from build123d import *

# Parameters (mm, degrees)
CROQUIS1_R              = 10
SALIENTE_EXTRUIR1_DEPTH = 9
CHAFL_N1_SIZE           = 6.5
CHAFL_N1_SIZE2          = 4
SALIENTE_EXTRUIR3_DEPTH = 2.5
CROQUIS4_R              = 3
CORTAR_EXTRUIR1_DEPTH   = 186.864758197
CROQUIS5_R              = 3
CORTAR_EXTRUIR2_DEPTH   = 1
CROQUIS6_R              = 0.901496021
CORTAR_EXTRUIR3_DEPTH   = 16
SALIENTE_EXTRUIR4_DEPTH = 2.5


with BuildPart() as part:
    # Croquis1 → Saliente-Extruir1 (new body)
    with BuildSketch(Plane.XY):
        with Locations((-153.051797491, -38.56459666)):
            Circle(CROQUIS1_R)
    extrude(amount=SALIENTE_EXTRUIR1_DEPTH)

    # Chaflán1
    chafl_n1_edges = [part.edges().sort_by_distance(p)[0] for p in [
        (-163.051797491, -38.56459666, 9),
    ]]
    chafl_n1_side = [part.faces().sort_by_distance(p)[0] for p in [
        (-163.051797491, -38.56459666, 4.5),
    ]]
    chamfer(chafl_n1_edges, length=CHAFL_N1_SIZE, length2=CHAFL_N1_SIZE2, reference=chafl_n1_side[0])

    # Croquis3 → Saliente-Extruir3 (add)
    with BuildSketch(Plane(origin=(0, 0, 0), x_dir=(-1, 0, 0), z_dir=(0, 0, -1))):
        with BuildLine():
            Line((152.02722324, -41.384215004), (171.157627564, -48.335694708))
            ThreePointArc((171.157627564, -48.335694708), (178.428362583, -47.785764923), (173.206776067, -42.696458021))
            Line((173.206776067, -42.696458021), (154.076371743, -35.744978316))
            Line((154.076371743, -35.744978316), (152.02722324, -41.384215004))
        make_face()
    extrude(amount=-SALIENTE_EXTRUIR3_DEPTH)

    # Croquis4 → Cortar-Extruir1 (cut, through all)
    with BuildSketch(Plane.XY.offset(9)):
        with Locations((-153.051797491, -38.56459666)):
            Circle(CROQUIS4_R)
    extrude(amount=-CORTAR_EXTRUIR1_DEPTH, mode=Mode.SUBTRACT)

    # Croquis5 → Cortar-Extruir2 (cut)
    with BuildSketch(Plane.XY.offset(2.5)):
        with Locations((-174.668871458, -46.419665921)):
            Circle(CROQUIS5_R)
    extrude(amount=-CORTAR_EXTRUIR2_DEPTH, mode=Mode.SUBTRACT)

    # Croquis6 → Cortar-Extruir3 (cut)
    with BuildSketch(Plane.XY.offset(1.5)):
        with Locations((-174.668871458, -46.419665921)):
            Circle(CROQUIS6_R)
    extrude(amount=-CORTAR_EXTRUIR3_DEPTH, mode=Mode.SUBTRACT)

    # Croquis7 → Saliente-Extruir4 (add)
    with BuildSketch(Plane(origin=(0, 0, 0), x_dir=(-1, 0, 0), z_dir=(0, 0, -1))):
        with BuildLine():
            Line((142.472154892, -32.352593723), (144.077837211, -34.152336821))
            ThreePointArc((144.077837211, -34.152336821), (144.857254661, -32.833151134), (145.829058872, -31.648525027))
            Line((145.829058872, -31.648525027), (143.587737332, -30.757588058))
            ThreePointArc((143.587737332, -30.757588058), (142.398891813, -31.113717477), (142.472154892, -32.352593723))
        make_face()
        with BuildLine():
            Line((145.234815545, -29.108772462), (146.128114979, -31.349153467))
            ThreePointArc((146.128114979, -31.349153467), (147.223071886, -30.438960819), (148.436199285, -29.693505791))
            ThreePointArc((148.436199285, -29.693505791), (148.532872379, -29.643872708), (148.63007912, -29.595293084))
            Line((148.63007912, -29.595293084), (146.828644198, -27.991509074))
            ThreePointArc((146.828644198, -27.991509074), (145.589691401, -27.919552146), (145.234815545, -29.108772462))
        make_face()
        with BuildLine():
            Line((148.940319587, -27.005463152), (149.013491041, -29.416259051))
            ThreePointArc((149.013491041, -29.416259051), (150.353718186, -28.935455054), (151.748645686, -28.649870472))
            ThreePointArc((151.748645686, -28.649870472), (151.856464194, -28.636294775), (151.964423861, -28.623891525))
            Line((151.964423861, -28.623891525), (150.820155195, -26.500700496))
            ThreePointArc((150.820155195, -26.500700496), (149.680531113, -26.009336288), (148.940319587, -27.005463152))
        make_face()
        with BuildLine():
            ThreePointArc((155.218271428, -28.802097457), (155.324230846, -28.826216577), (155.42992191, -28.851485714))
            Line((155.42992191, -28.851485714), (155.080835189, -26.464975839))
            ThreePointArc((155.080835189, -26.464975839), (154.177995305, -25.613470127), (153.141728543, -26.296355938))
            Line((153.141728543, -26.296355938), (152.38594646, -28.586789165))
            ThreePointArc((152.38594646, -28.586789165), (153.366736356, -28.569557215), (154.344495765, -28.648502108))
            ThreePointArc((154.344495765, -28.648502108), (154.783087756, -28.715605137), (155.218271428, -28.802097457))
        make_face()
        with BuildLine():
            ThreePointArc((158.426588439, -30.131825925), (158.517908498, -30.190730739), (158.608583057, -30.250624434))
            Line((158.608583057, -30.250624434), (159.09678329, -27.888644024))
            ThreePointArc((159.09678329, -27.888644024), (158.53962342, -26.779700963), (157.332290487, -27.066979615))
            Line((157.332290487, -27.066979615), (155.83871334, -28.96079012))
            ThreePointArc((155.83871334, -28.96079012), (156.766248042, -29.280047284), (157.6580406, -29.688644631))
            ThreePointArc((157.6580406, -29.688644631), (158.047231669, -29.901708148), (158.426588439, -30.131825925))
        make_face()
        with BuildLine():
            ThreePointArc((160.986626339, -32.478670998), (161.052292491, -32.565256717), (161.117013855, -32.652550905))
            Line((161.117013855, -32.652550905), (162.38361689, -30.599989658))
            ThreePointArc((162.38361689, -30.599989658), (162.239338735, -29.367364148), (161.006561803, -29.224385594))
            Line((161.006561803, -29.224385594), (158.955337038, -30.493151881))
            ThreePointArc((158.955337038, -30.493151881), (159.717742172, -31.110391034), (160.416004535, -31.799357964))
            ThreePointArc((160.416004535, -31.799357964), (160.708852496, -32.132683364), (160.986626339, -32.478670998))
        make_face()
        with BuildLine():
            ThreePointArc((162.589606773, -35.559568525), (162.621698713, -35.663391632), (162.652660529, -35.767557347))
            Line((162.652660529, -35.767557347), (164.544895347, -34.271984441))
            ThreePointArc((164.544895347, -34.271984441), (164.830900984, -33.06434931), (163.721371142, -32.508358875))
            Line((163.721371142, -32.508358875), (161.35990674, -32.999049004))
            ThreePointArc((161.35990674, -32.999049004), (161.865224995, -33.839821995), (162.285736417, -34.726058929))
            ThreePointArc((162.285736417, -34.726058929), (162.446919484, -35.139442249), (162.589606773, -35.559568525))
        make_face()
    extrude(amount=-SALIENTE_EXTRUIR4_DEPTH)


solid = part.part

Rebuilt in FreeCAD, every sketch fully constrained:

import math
import FreeCAD as App
import Part
import Sketcher
from FreeCAD import Vector


def edges_at(feature, points):
    """Names of the edges that pass closest to the given points."""
    edges = feature.Shape.Edges
    near = lambda p: min(range(len(edges)), key=lambda i: edges[i].distToShape(Part.Vertex(*p))[0])
    return sorted({f"Edge{near(p) + 1}" for p in points})

doc = App.newDocument("Part")
body = doc.addObject("PartDesign::Body", "Body")

sketch1 = body.newObject("Sketcher::SketchObject", "Sketch")
sketch1.AttachmentSupport = (doc.getObject("XY_Plane"), [""])
sketch1.MapMode = "FlatFace"
sketch1.addGeometry(Part.Circle(Vector(-153.051797, -38.564597, 0), Vector(0, 0, 1), 10), False)
sketch1.addConstraint(Sketcher.Constraint("Diameter", 0, 20.0))
sketch1.addConstraint(Sketcher.Constraint("DistanceX", 0, 3, -1, 1, 153.051797))
sketch1.addConstraint(Sketcher.Constraint("DistanceY", 0, 3, -1, 1, 38.564597))
pad1 = body.newObject("PartDesign::Pad", "Pad")
pad1.Profile = sketch1
pad1.Length = 9
doc.recompute()

chamfer = body.newObject("PartDesign::Chamfer", "Chamfer")
chamfer.Base = (pad1, edges_at(pad1, [(-163.052, -38.565, 9)]))
chamfer.ChamferType = "Two distances"
chamfer.Size = 6.5
chamfer.Size2 = 4

sketch2 = body.newObject("Sketcher::SketchObject", "Sketch001")
sketch2.AttachmentSupport = (doc.getObject("XY_Plane"), [""])
sketch2.MapMode = "FlatFace"
sketch2.addGeometry(Part.LineSegment(Vector(-152.027223, -41.384215, 0), Vector(-171.157628, -48.335695, 0)), False)
sketch2.addGeometry(Part.ArcOfCircle(Part.Circle(Vector(-174.668871, -46.419666, 0), Vector(0, 0, 1), 4), math.radians(68.560175), math.radians(331.379419)), False)
sketch2.addGeometry(Part.LineSegment(Vector(-173.206776, -42.696458, 0), Vector(-154.076372, -35.744978, 0)), False)
sketch2.addGeometry(Part.LineSegment(Vector(-154.076372, -35.744978, 0), Vector(-152.027223, -41.384215, 0)), False)
sketch2.addConstraint(Sketcher.Constraint("Coincident", 0, 2, 1, 2))
sketch2.addConstraint(Sketcher.Constraint("Coincident", 1, 1, 2, 1))
sketch2.addConstraint(Sketcher.Constraint("Coincident", 2, 2, 3, 1))
sketch2.addConstraint(Sketcher.Constraint("Coincident", 3, 2, 0, 1))
sketch2.addConstraint(Sketcher.Constraint("Parallel", 0, 2))
sketch2.addConstraint(Sketcher.Constraint("Perpendicular", 2, 3))
sketch2.addConstraint(Sketcher.Constraint("Equal", 0, 2))
sketch2.addConstraint(Sketcher.Constraint("Radius", 1, 4.0))
sketch2.addConstraint(Sketcher.Constraint("Distance", 3, 6.0))
sketch2.addConstraint(Sketcher.Constraint("DistanceX", 1, 3, 2, 2, 20.5925))
sketch2.addConstraint(Sketcher.Constraint("Distance", 0, 20.354249))
sketch2.addConstraint(Sketcher.Constraint("DistanceX", 1, 3, -1, 1, 174.668871))
sketch2.addConstraint(Sketcher.Constraint("DistanceY", 1, 1, -1, 1, 42.696458))
pad2 = body.newObject("PartDesign::Pad", "Pad001")
pad2.Profile = sketch2
pad2.Length = 2.5

sketch3 = body.newObject("Sketcher::SketchObject", "Sketch002")
sketch3.AttachmentSupport = (doc.getObject("XY_Plane"), [""])
sketch3.MapMode = "FlatFace"
sketch3.AttachmentOffset = App.Placement(Vector(0, 0, 9), App.Rotation())
sketch3.addGeometry(Part.Circle(Vector(-153.051797, -38.564597, 0), Vector(0, 0, 1), 3), False)
sketch3.addConstraint(Sketcher.Constraint("Diameter", 0, 6.0))
sketch3.addConstraint(Sketcher.Constraint("DistanceX", 0, 3, -1, 1, 153.051797))
sketch3.addConstraint(Sketcher.Constraint("DistanceY", 0, 3, -1, 1, 38.564597))
pocket1 = body.newObject("PartDesign::Pocket", "Pocket")
pocket1.Profile = sketch3
pocket1.Type = "ThroughAll"

sketch4 = body.newObject("Sketcher::SketchObject", "Sketch003")
sketch4.AttachmentSupport = (doc.getObject("XY_Plane"), [""])
sketch4.MapMode = "FlatFace"
sketch4.AttachmentOffset = App.Placement(Vector(0, 0, 2.5), App.Rotation())
sketch4.addGeometry(Part.Circle(Vector(-174.668871, -46.419666, 0), Vector(0, 0, 1), 3), False)
sketch4.addConstraint(Sketcher.Constraint("Diameter", 0, 6.0))
sketch4.addConstraint(Sketcher.Constraint("DistanceX", 0, 3, -1, 1, 174.668871))
sketch4.addConstraint(Sketcher.Constraint("DistanceY", 0, 3, -1, 1, 46.419666))
pocket2 = body.newObject("PartDesign::Pocket", "Pocket001")
pocket2.Profile = sketch4
pocket2.Length = 1

sketch5 = body.newObject("Sketcher::SketchObject", "Sketch004")
sketch5.AttachmentSupport = (doc.getObject("XY_Plane"), [""])
sketch5.MapMode = "FlatFace"
sketch5.AttachmentOffset = App.Placement(Vector(0, 0, 1.5), App.Rotation())
sketch5.addGeometry(Part.Circle(Vector(-174.668871, -46.419666, 0), Vector(0, 0, 1), 0.901496), False)
sketch5.addConstraint(Sketcher.Constraint("Diameter", 0, 1.802992))
sketch5.addConstraint(Sketcher.Constraint("DistanceX", 0, 3, -1, 1, 174.668871))
sketch5.addConstraint(Sketcher.Constraint("DistanceY", 0, 3, -1, 1, 46.419666))
pocket3 = body.newObject("PartDesign::Pocket", "Pocket002")
pocket3.Profile = sketch5
pocket3.Length = 16

sketch6 = body.newObject("Sketcher::SketchObject", "Sketch005")
sketch6.AttachmentSupport = (doc.getObject("XY_Plane"), [""])
sketch6.MapMode = "FlatFace"
sketch6.addGeometry(Part.LineSegment(Vector(-142.472155, -32.352594, 0), Vector(-144.077837, -34.152337, 0)), False)
sketch6.addGeometry(Part.ArcOfCircle(Part.Circle(Vector(-153.051797, -38.564597, 0), Vector(0, 0, 1), 10), math.radians(26.18213), math.radians(43.757465)), False)
sketch6.addGeometry(Part.LineSegment(Vector(-145.829059, -31.648525, 0), Vector(-143.587737, -30.757588, 0)), False)
sketch6.addGeometry(Part.ArcOfCircle(Part.Circle(Vector(-143.218346, -31.686862, 0), Vector(0, 0, 1), 1), math.radians(-41.738483), math.radians(111.678078)), False)
sketch6.addGeometry(Part.LineSegment(Vector(-145.234816, -29.108772, 0), Vector(-146.128115, -31.349153, 0)), False)
sketch6.addGeometry(Part.ArcOfCircle(Part.Circle(Vector(-153.051797, -38.564597, 0), Vector(0, 0, 1), 10), math.radians(46.18213), math.radians(62.512194)), False)
sketch6.addGeometry(Part.ArcOfCircle(Part.Circle(Vector(-153.051798, -38.564599, 0), Vector(0, 0, 1), 10.000002), math.radians(62.512195), math.radians(63.757465)), False)
sketch6.addGeometry(Part.LineSegment(Vector(-148.630079, -29.595293, 0), Vector(-146.828644, -27.991509, 0)), False)
sketch6.addGeometry(Part.ArcOfCircle(Part.Circle(Vector(-146.1637, -28.738402, 0), Vector(0, 0, 1), 1), math.radians(-21.738483), math.radians(131.678078)), False)
sketch6.addGeometry(Part.LineSegment(Vector(-148.94032, -27.005463, 0), Vector(-149.013491, -29.416259, 0)), False)
sketch6.addGeometry(Part.ArcOfCircle(Part.Circle(Vector(-153.051797, -38.564597, 0), Vector(0, 0, 1), 10), math.radians(66.18213), math.radians(82.512194)), False)
sketch6.addGeometry(Part.ArcOfCircle(Part.Circle(Vector(-153.051796, -38.564589, 0), Vector(0, 0, 1), 9.999992), math.radians(82.512194), math.radians(83.757466)), False)
sketch6.addGeometry(Part.LineSegment(Vector(-151.964424, -28.623892, 0), Vector(-150.820155, -26.5007, 0)), False)
sketch6.addGeometry(Part.ArcOfCircle(Part.Circle(Vector(-149.939859, -26.975126, 0), Vector(0, 0, 1), 1), math.radians(-1.738483), math.radians(151.678078)), False)
sketch6.addGeometry(Part.ArcOfCircle(Part.Circle(Vector(-153.051795, -38.564606, 0), Vector(0, 0, 1), 10.000009), math.radians(102.512195), math.radians(103.757464)), False)
sketch6.addGeometry(Part.LineSegment(Vector(-155.429922, -28.851486, 0), Vector(-155.080835, -26.464976, 0)), False)
sketch6.addGeometry(Part.ArcOfCircle(Part.Circle(Vector(-154.091365, -26.609711, 0), Vector(0, 0, 1), 1), math.radians(18.261517), math.radians(171.678078)), False)
sketch6.addGeometry(Part.LineSegment(Vector(-153.141729, -26.296356, 0), Vector(-152.385946, -28.586789, 0)), False)
sketch6.addGeometry(Part.ArcOfCircle(Part.Circle(Vector(-153.051797, -38.564597, 0), Vector(0, 0, 1), 10), math.radians(86.18213), math.radians(97.4274)), False)
sketch6.addGeometry(Part.ArcOfCircle(Part.Circle(Vector(-153.051798, -38.564597, 0), Vector(0, 0, 1), 10), math.radians(97.4274), math.radians(102.512194)), False)
sketch6.addGeometry(Part.ArcOfCircle(Part.Circle(Vector(-153.051798, -38.564596, 0), Vector(0, 0, 1), 9.999999), math.radians(122.512194), math.radians(123.757465)), False)
sketch6.addGeometry(Part.LineSegment(Vector(-158.608583, -30.250624, 0), Vector(-159.096783, -27.888644, 0)), False)
sketch6.addGeometry(Part.ArcOfCircle(Part.Circle(Vector(-158.117483, -27.686231, 0), Vector(0, 0, 1), 1), math.radians(38.261516), math.radians(191.678078)), False)
sketch6.addGeometry(Part.LineSegment(Vector(-157.33229, -27.06698, 0), Vector(-155.838713, -28.96079, 0)), False)
sketch6.addGeometry(Part.ArcOfCircle(Part.Circle(Vector(-153.051798, -38.564597, 0), Vector(0, 0, 1), 10), math.radians(106.18213), math.radians(117.427401)), False)
sketch6.addGeometry(Part.ArcOfCircle(Part.Circle(Vector(-153.051797, -38.564597, 0), Vector(0, 0, 1), 10), math.radians(117.427401), math.radians(122.512194)), False)
sketch6.addGeometry(Part.ArcOfCircle(Part.Circle(Vector(-153.051789, -38.564603, 0), Vector(0, 0, 1), 10.00001), math.radians(142.512195), math.radians(143.757464)), False)
sketch6.addGeometry(Part.LineSegment(Vector(-161.117014, -32.652551, 0), Vector(-162.383617, -30.59999, 0)), False)
sketch6.addGeometry(Part.ArcOfCircle(Part.Circle(Vector(-161.532605, -30.074844, 0), Vector(0, 0, 1), 1), math.radians(58.261517), math.radians(211.678078)), False)
sketch6.addGeometry(Part.LineSegment(Vector(-161.006562, -29.224386, 0), Vector(-158.955337, -30.493152, 0)), False)
sketch6.addGeometry(Part.ArcOfCircle(Part.Circle(Vector(-153.051798, -38.564597, 0), Vector(0, 0, 1), 10), math.radians(126.18213), math.radians(137.427401)), False)
sketch6.addGeometry(Part.ArcOfCircle(Part.Circle(Vector(-153.051797, -38.564597, 0), Vector(0, 0, 1), 10), math.radians(137.427401), math.radians(142.512194)), False)
sketch6.addGeometry(Part.ArcOfCircle(Part.Circle(Vector(-153.051814, -38.564592, 0), Vector(0, 0, 1), 9.999982), math.radians(162.512193), math.radians(163.757466)), False)
sketch6.addGeometry(Part.LineSegment(Vector(-162.652661, -35.767557, 0), Vector(-164.544895, -34.271984, 0)), False)
sketch6.addGeometry(Part.ArcOfCircle(Part.Circle(Vector(-163.924816, -33.487445, 0), Vector(0, 0, 1), 1), math.radians(78.261517), math.radians(231.678078)), False)
sketch6.addGeometry(Part.LineSegment(Vector(-163.721371, -32.508359, 0), Vector(-161.359907, -32.999049, 0)), False)
sketch6.addGeometry(Part.ArcOfCircle(Part.Circle(Vector(-153.051797, -38.564597, 0), Vector(0, 0, 1), 10), math.radians(146.18213), math.radians(157.4274)), False)
sketch6.addGeometry(Part.ArcOfCircle(Part.Circle(Vector(-153.051798, -38.564597, 0), Vector(0, 0, 1), 10), math.radians(157.4274), math.radians(162.512194)), False)
sketch6.addConstraint(Sketcher.Constraint("Coincident", 0, 2, 1, 1))
sketch6.addConstraint(Sketcher.Constraint("Coincident", 1, 2, 2, 1))
sketch6.addConstraint(Sketcher.Constraint("Tangent", 2, 2, 3, 2))
sketch6.addConstraint(Sketcher.Constraint("Tangent", 3, 1, 0, 1))
sketch6.addConstraint(Sketcher.Constraint("Coincident", 4, 2, 5, 1))
sketch6.addConstraint(Sketcher.Constraint("Tangent", 5, 2, 6, 1))
sketch6.addConstraint(Sketcher.Constraint("Coincident", 6, 2, 7, 1))
sketch6.addConstraint(Sketcher.Constraint("Tangent", 7, 2, 8, 2))
sketch6.addConstraint(Sketcher.Constraint("Tangent", 8, 1, 4, 1))
sketch6.addConstraint(Sketcher.Constraint("Coincident", 9, 2, 10, 1))
sketch6.addConstraint(Sketcher.Constraint("Tangent", 10, 2, 11, 1))
sketch6.addConstraint(Sketcher.Constraint("Coincident", 11, 2, 12, 1))
sketch6.addConstraint(Sketcher.Constraint("Tangent", 12, 2, 13, 2))
sketch6.addConstraint(Sketcher.Constraint("Tangent", 13, 1, 9, 1))
sketch6.addConstraint(Sketcher.Constraint("Coincident", 14, 2, 15, 1))
sketch6.addConstraint(Sketcher.Constraint("Tangent", 15, 2, 16, 2))
sketch6.addConstraint(Sketcher.Constraint("Tangent", 16, 1, 17, 1))
sketch6.addConstraint(Sketcher.Constraint("Coincident", 17, 2, 18, 1))
sketch6.addConstraint(Sketcher.Constraint("Tangent", 18, 2, 19, 1))
sketch6.addConstraint(Sketcher.Constraint("Tangent", 19, 2, 14, 1))
sketch6.addConstraint(Sketcher.Constraint("Coincident", 20, 2, 21, 1))
sketch6.addConstraint(Sketcher.Constraint("Tangent", 21, 2, 22, 2))
sketch6.addConstraint(Sketcher.Constraint("Tangent", 22, 1, 23, 1))
sketch6.addConstraint(Sketcher.Constraint("Coincident", 23, 2, 24, 1))
sketch6.addConstraint(Sketcher.Constraint("Tangent", 24, 2, 25, 1))
sketch6.addConstraint(Sketcher.Constraint("Tangent", 25, 2, 20, 1))
sketch6.addConstraint(Sketcher.Constraint("Coincident", 26, 2, 27, 1))
sketch6.addConstraint(Sketcher.Constraint("Tangent", 27, 2, 28, 2))
sketch6.addConstraint(Sketcher.Constraint("Tangent", 28, 1, 29, 1))
sketch6.addConstraint(Sketcher.Constraint("Coincident", 29, 2, 30, 1))
sketch6.addConstraint(Sketcher.Constraint("Tangent", 30, 2, 31, 1))
sketch6.addConstraint(Sketcher.Constraint("Tangent", 31, 2, 26, 1))
sketch6.addConstraint(Sketcher.Constraint("Coincident", 32, 2, 33, 1))
sketch6.addConstraint(Sketcher.Constraint("Tangent", 33, 2, 34, 2))
sketch6.addConstraint(Sketcher.Constraint("Tangent", 34, 1, 35, 1))
sketch6.addConstraint(Sketcher.Constraint("Coincident", 35, 2, 36, 1))
sketch6.addConstraint(Sketcher.Constraint("Tangent", 36, 2, 37, 1))
sketch6.addConstraint(Sketcher.Constraint("Tangent", 37, 2, 32, 1))
sketch6.addConstraint(Sketcher.Constraint("Coincident", 5, 3, 1, 3))
sketch6.addConstraint(Sketcher.Constraint("Coincident", 10, 3, 1, 3))
sketch6.addConstraint(Sketcher.Constraint("Coincident", 14, 3, 1, 3))
sketch6.addConstraint(Sketcher.Constraint("Coincident", 18, 3, 1, 3))
sketch6.addConstraint(Sketcher.Constraint("Coincident", 20, 3, 1, 3))
sketch6.addConstraint(Sketcher.Constraint("Coincident", 24, 3, 1, 3))
sketch6.addConstraint(Sketcher.Constraint("Coincident", 26, 3, 14, 3))
sketch6.addConstraint(Sketcher.Constraint("Coincident", 30, 3, 1, 3))
sketch6.addConstraint(Sketcher.Constraint("Coincident", 36, 3, 1, 3))
sketch6.addConstraint(Sketcher.Constraint("Equal", 1, 5))
sketch6.addConstraint(Sketcher.Constraint("Equal", 3, 8))
sketch6.addConstraint(Sketcher.Constraint("Equal", 5, 10))
sketch6.addConstraint(Sketcher.Constraint("Equal", 8, 13))
sketch6.addConstraint(Sketcher.Constraint("Equal", 13, 16))
sketch6.addConstraint(Sketcher.Constraint("Equal", 10, 18))
sketch6.addConstraint(Sketcher.Constraint("Equal", 19, 20))
sketch6.addConstraint(Sketcher.Constraint("Equal", 16, 22))
sketch6.addConstraint(Sketcher.Constraint("Equal", 14, 26))
sketch6.addConstraint(Sketcher.Constraint("Equal", 22, 28))
sketch6.addConstraint(Sketcher.Constraint("Equal", 28, 34))
sketch6.addConstraint(Sketcher.Constraint("Equal", 31, 36))
sketch6.addConstraint(Sketcher.Constraint("Equal", 36, 37))
sketch6.addConstraint(Sketcher.Constraint("Vertical", 6, 3, 11, 3))
sketch6.addConstraint(Sketcher.Constraint("Vertical", 11, 3, 14, 3))
sketch6.addConstraint(Sketcher.Constraint("Equal", 0, 2))
sketch6.addConstraint(Sketcher.Constraint("Equal", 2, 4))
sketch6.addConstraint(Sketcher.Constraint("Equal", 4, 7))
sketch6.addConstraint(Sketcher.Constraint("Equal", 7, 9))
sketch6.addConstraint(Sketcher.Constraint("Equal", 9, 12))
sketch6.addConstraint(Sketcher.Constraint("Equal", 12, 15))
sketch6.addConstraint(Sketcher.Constraint("Equal", 15, 17))
sketch6.addConstraint(Sketcher.Constraint("Equal", 17, 21))
sketch6.addConstraint(Sketcher.Constraint("Equal", 21, 23))
sketch6.addConstraint(Sketcher.Constraint("Equal", 23, 27))
sketch6.addConstraint(Sketcher.Constraint("Equal", 27, 29))
sketch6.addConstraint(Sketcher.Constraint("Equal", 29, 33))
sketch6.addConstraint(Sketcher.Constraint("Equal", 33, 35))
sketch6.addConstraint(Sketcher.Constraint("Radius", 1, 10.0))
sketch6.addConstraint(Sketcher.Constraint("Radius", 3, 1.0))
sketch6.addConstraint(Sketcher.Constraint("Radius", 32, 9.999982))
sketch6.addConstraint(Sketcher.Constraint("DistanceX", 6, 3, -1, 1, 153.051798))
sketch6.addConstraint(Sketcher.Constraint("DistanceY", 6, 3, -1, 1, 38.564599))
sketch6.addConstraint(Sketcher.Constraint("DistanceX", 8, 3, -1, 1, 146.1637))
sketch6.addConstraint(Sketcher.Constraint("DistanceY", 8, 3, -1, 1, 28.738402))
sketch6.addConstraint(Sketcher.Constraint("DistanceX", 5, 2, -1, 1, 148.436199))
sketch6.addConstraint(Sketcher.Constraint("DistanceY", 12, 2, -1, 1, 26.5007))
sketch6.addConstraint(Sketcher.Constraint("DistanceX", 13, 3, -1, 1, 149.939859))
sketch6.addConstraint(Sketcher.Constraint("DistanceY", 16, 3, -1, 1, 26.609711))
sketch6.addConstraint(Sketcher.Constraint("DistanceY", 22, 3, -1, 1, 27.686231))
sketch6.addConstraint(Sketcher.Constraint("DistanceX", 1, 2, -1, 1, 145.829059))
sketch6.addConstraint(Sketcher.Constraint("DistanceY", 2, 2, -1, 1, 30.757588))
sketch6.addConstraint(Sketcher.Constraint("DistanceX", 6, 2, -1, 1, 148.630079))
sketch6.addConstraint(Sketcher.Constraint("DistanceY", 10, 2, -1, 1, 28.64987))
sketch6.addConstraint(Sketcher.Constraint("DistanceX", 14, 2, -1, 1, 155.429922))
sketch6.addConstraint(Sketcher.Constraint("DistanceX", 19, 2, -1, 1, 155.218271))
sketch6.addConstraint(Sketcher.Constraint("DistanceX", 22, 1, -1, 1, 157.33229))
sketch6.addConstraint(Sketcher.Constraint("DistanceX", 24, 2, -1, 1, 157.658041))
sketch6.addConstraint(Sketcher.Constraint("DistanceX", 25, 2, -1, 1, 158.426588))
sketch6.addConstraint(Sketcher.Constraint("DistanceY", 26, 2, -1, 1, 32.652551))
sketch6.addConstraint(Sketcher.Constraint("DistanceY", 27, 2, -1, 1, 30.59999))
sketch6.addConstraint(Sketcher.Constraint("DistanceY", 31, 2, -1, 1, 32.478671))
sketch6.addConstraint(Sketcher.Constraint("DistanceX", 32, 2, -1, 1, 162.652661))
sketch6.addConstraint(Sketcher.Constraint("DistanceX", 34, 1, -1, 1, 163.721371))
sketch6.addConstraint(Sketcher.Constraint("DistanceY", 36, 2, -1, 1, 34.726059))
sketch6.addConstraint(Sketcher.Constraint("DistanceY", 37, 2, -1, 1, 35.559569))
sketch6.addConstraint(Sketcher.Constraint("DistanceX", 18, 2, -1, 1, 154.344496))
sketch6.addConstraint(Sketcher.Constraint("DistanceX", 30, 2, -1, 1, 160.416005))
pad3 = body.newObject("PartDesign::Pad", "Pad002")
pad3.Profile = sketch6
pad3.Length = 2.5

doc.recompute()
